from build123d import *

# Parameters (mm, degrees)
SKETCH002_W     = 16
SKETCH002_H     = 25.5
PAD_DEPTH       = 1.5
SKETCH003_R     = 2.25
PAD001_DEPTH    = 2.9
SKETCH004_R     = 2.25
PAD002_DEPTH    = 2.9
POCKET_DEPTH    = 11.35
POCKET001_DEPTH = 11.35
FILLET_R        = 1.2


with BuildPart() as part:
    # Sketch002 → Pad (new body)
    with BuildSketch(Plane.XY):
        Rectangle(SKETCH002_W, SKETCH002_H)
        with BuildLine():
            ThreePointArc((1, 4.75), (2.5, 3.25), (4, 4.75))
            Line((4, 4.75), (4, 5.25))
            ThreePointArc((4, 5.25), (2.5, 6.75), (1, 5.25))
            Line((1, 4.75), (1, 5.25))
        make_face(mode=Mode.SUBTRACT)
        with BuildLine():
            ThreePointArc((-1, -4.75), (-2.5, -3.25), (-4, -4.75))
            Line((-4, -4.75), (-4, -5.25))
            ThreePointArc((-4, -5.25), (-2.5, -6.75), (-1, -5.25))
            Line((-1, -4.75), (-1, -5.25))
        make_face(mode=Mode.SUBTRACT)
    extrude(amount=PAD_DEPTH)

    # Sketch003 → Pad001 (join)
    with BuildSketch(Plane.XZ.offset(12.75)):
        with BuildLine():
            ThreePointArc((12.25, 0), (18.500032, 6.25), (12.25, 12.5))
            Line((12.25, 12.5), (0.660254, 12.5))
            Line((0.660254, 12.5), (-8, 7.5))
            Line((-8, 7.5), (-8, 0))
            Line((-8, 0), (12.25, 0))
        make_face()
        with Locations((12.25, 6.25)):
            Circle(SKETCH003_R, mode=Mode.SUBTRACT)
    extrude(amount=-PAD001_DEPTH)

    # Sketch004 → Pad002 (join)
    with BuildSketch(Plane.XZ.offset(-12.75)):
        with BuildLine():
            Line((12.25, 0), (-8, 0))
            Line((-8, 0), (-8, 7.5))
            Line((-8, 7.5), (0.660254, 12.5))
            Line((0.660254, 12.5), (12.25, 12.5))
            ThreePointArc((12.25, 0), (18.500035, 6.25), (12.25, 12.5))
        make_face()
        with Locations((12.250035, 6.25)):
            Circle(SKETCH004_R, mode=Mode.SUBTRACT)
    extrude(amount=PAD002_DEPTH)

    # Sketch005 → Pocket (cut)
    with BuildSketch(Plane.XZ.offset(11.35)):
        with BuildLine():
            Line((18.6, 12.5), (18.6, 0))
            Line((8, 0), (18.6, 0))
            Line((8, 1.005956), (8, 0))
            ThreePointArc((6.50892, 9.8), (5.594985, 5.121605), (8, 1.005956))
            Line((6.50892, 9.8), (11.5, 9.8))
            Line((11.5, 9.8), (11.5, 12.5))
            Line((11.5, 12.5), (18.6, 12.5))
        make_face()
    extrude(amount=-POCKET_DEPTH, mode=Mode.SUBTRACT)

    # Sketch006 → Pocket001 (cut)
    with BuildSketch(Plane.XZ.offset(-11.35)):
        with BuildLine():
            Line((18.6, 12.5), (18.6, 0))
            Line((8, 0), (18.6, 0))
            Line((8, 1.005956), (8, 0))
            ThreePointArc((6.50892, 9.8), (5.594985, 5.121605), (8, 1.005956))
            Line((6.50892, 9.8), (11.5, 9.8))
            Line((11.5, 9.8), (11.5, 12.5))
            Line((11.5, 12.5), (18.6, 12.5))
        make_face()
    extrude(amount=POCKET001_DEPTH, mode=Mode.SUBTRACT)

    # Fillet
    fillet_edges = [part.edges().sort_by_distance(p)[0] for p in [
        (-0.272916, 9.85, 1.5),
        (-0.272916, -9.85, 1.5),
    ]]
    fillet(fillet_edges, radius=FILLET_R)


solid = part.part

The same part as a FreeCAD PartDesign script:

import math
import FreeCAD as App
import Part
import Sketcher
from FreeCAD import Vector
Q = App.Units.Quantity


def edges_at(feature, points):
    """Names of the edges that pass closest to the given points."""
    edges = feature.Shape.Edges
    near = lambda p: min(range(len(edges)), key=lambda i: edges[i].distToShape(Part.Vertex(*p))[0])
    return sorted({f"Edge{near(p) + 1}" for p in points})


def add_polygon(sketch, points):
    """Adds a closed chain of lines whose ends are joined by coincident constraints."""
    first, n = sketch.GeometryCount, len(points)
    for a, b in zip(points, points[1:] + points[:1]):
        sketch.addGeometry(Part.LineSegment(App.Vector(*a, 0), App.Vector(*b, 0)), False)
    for i in range(n):
        sketch.addConstraint(Sketcher.Constraint("Coincident", first + i, 2, first + (i + 1) % n, 1))

doc = App.newDocument("Part")
body = doc.addObject("PartDesign::Body", "Body")

# Sketch on XY plane
sketch1 = body.newObject("Sketcher::SketchObject", "Sketch")
sketch1.AttachmentSupport = (doc.getObject("XY_Plane"), [""])
sketch1.MapMode = "FlatFace"
add_polygon(sketch1, [(-8, 12.8), (-8, -12.8), (8, -12.8), (8, 12.8)])  # lines 0-3
sketch1.addGeometry(Part.ArcOfCircle(Part.Circle(Vector(-2.5, -4.8, 0), Vector(0, 0, 1), 1.5), math.radians(0), math.radians(180)), False)  # 4
sketch1.addGeometry(Part.LineSegment(Vector(-1, -4.8, 0), Vector(-1, -5.2, 0)), False)  # 5
sketch1.addGeometry(Part.ArcOfCircle(Part.Circle(Vector(-2.5, -5.2, 0), Vector(0, 0, 1), 1.5), math.radians(180), math.radians(360)), False)  # 6
sketch1.addGeometry(Part.LineSegment(Vector(-4, -5.2, 0), Vector(-4, -4.8, 0)), False)  # 7
sketch1.addGeometry(Part.ArcOfCircle(Part.Circle(Vector(2.5, 4.8, 0), Vector(0, 0, 1), 1.5), math.radians(180), math.radians(360)), False)  # 8
sketch1.addGeometry(Part.LineSegment(Vector(1, 4.8, 0), Vector(1, 5.2, 0)), False)  # 9
sketch1.addGeometry(Part.ArcOfCircle(Part.Circle(Vector(2.5, 5.2, 0), Vector(0, 0, 1), 1.5), math.radians(0), math.radians(180)), False)  # 10
sketch1.addGeometry(Part.LineSegment(Vector(4, 5.2, 0), Vector(4, 4.8, 0)), False)  # 11
sketch1.addConstraint(Sketcher.Constraint("Tangent", 4, 1, 5, 1))
sketch1.addConstraint(Sketcher.Constraint("Tangent", 5, 2, 6, 2))
sketch1.addConstraint(Sketcher.Constraint("Tangent", 6, 1, 7, 1))
sketch1.addConstraint(Sketcher.Constraint("Tangent", 7, 2, 4, 2))
sketch1.addConstraint(Sketcher.Constraint("Tangent", 8, 1, 9, 1))
sketch1.addConstraint(Sketcher.Constraint("Tangent", 9, 2, 10, 2))
sketch1.addConstraint(Sketcher.Constraint("Tangent", 10, 1, 11, 1))
sketch1.addConstraint(Sketcher.Constraint("Tangent", 11, 2, 8, 2))
sketch1.addConstraint(Sketcher.Constraint("Vertical", 0))
sketch1.addConstraint(Sketcher.Constraint("Horizontal", 1))
sketch1.addConstraint(Sketcher.Constraint("Vertical", 2))
sketch1.addConstraint(Sketcher.Constraint("Horizontal", 3))
sketch1.addConstraint(Sketcher.Constraint("Vertical", 5))
sketch1.addConstraint(Sketcher.Constraint("Vertical", 7))
sketch1.addConstraint(Sketcher.Constraint("Vertical", 9))
sketch1.addConstraint(Sketcher.Constraint("Vertical", 11))
sketch1.addConstraint(Sketcher.Constraint("Equal", 6, 8))
sketch1.addConstraint(Sketcher.Constraint("Symmetric", 4, 3, 8, 3, -1, 1))
sketch1.addConstraint(Sketcher.Constraint("Symmetric", 0, 2, 2, 2, -1, 1))
sketch1.addConstraint(Sketcher.Constraint("Equal", 7, 9))
sketch1.addConstraint(Sketcher.Constraint("Radius", 4, 1.5))
sketch1.addConstraint(Sketcher.Constraint("DistanceX", 1, 1, 1, 2, 16.0))
sketch1.addConstraint(Sketcher.Constraint("DistanceY", 0, 2, 0, 1, 25.5))
sketch1.addConstraint(Sketcher.Constraint("DistanceY", 5, 2, 5, 1, 0.5))
sketch1.addConstraint(Sketcher.Constraint("DistanceX", 4, 1, -1, 1, 1.0))
sketch1.addConstraint(Sketcher.Constraint("DistanceY", 6, 3, 8, 3, 10.0))
pad1 = body.newObject("PartDesign::Pad", "Pad")
pad1.Profile = sketch1
pad1.Length = 1.5

# Sketch on XZ plane
sketch2 = body.newObject("Sketcher::SketchObject", "Sketch001")
sketch2.AttachmentSupport = (doc.getObject("XZ_Plane"), [""])
sketch2.MapMode = "FlatFace"
sketch2.AttachmentOffset = App.Placement(Vector(0, 0, 12.75), App.Rotation())
sketch2.addGeometry(Part.ArcOfCircle(Part.Circle(Vector(12.3, 6.2, 0), Vector(0, 0, 1), 6.2), math.radians(-90), math.radians(90)), False)
sketch2.addGeometry(Part.LineSegment(Vector(12.2, 12.5, 0), Vector(0.7, 12.5, 0)), False)
sketch2.addGeometry(Part.LineSegment(Vector(0.7, 12.5, 0), Vector(-8, 7.5, 0)), False)
sketch2.addGeometry(Part.LineSegment(Vector(-8, 7.5, 0), Vector(-8, 0, 0)), False)
sketch2.addGeometry(Part.LineSegment(Vector(-8, 0, 0), Vector(12.2, 0, 0)), False)
sketch2.addGeometry(Part.Circle(Vector(12.2, 6.2, 0), Vector(0, 0, 1), 2.2), False)
sketch2.addConstraint(Sketcher.Constraint("Coincident", 0, 2, 1, 1))
sketch2.addConstraint(Sketcher.Constraint("Coincident", 1, 2, 2, 1))
sketch2.addConstraint(Sketcher.Constraint("Coincident", 2, 2, 3, 1))
sketch2.addConstraint(Sketcher.Constraint("Coincident", 3, 2, 4, 1))
sketch2.addConstraint(Sketcher.Constraint("Coincident", 4, 2, 0, 1))
sketch2.addConstraint(Sketcher.Constraint("Horizontal", 1))
sketch2.addConstraint(Sketcher.Constraint("Vertical", 3))
sketch2.addConstraint(Sketcher.Constraint("Horizontal", 4))
sketch2.addConstraint(Sketcher.Constraint("PointOnObject", 3, 2, -1))
sketch2.addConstraint(Sketcher.Constraint("Horizontal", 0, 3, 5, 3))
sketch2.addConstraint(Sketcher.Constraint("Vertical", 5, 3, 0, 2))
sketch2.addConstraint(Sketcher.Constraint("Vertical", 0, 2, 4, 2))
sketch2.addConstraint(Sketcher.Constraint("Diameter", 5, 4.5))
sketch2.addConstraint(Sketcher.Constraint("Angle", 2, Q("-150 deg")))
sketch2.addConstraint(Sketcher.Constraint("Radius", 0, 6.25))
sketch2.addConstraint(Sketcher.Constraint("Distance", 2, 10.0))
sketch2.addConstraint(Sketcher.Constraint("DistanceX", 2, 2, -1, 1, 8.0))
sketch2.addConstraint(Sketcher.Constraint("DistanceX", 4, 1, 4, 2, 20.25))
sketch2.addConstraint(Sketcher.Constraint("DistanceX", -1, 1, 0, 3, 12.250032))
pad2 = body.newObject("PartDesign::Pad", "Pad001")
pad2.Profile = sketch2
pad2.Length = 2.9
pad2.Reversed = True

# Sketch on XZ plane
sketch3 = body.newObject("Sketcher::SketchObject", "Sketch002")
sketch3.AttachmentSupport = (doc.getObject("XZ_Plane"), [""])
sketch3.MapMode = "FlatFace"
sketch3.AttachmentOffset = App.Placement(Vector(0, 0, -12.75), App.Rotation())
sketch3.addGeometry(Part.LineSegment(Vector(-8, 0, 0), Vector(12.2, 0, 0)), False)
sketch3.addGeometry(Part.ArcOfCircle(Part.Circle(Vector(12.3, 6.2, 0), Vector(0, 0, 1), 6.2), math.radians(-90), math.radians(90)), False)
sketch3.addGeometry(Part.LineSegment(Vector(12.2, 12.5, 0), Vector(0.7, 12.5, 0)), False)
sketch3.addGeometry(Part.LineSegment(Vector(0.7, 12.5, 0), Vector(-8, 7.5, 0)), False)
sketch3.addGeometry(Part.LineSegment(Vector(-8, 7.5, 0), Vector(-8, 0, 0)), False)
sketch3.addGeometry(Part.Circle(Vector(12.3, 6.2, 0), Vector(0, 0, 1), 2.2), False)
sketch3.addConstraint(Sketcher.Constraint("Coincident", 0, 2, 1, 1))
sketch3.addConstraint(Sketcher.Constraint("Coincident", 1, 2, 2, 1))
sketch3.addConstraint(Sketcher.Constraint("Coincident", 2, 2, 3, 1))
sketch3.addConstraint(Sketcher.Constraint("Coincident", 3, 2, 4, 1))
sketch3.addConstraint(Sketcher.Constraint("Coincident", 4, 2, 0, 1))
sketch3.addConstraint(Sketcher.Constraint("Horizontal", 0))
sketch3.addConstraint(Sketcher.Constraint("Horizontal", 2))
sketch3.addConstraint(Sketcher.Constraint("Vertical", 4))
sketch3.addConstraint(Sketcher.Constraint("Coincident", 5, 3, 1, 3))
sketch3.addConstraint(Sketcher.Constraint("PointOnObject", 0, 2, -1))
sketch3.addConstraint(Sketcher.Constraint("Vertical", 0, 2, 1, 2))
sketch3.addConstraint(Sketcher.Constraint("Diameter", 5, 4.5))
sketch3.addConstraint(Sketcher.Constraint("Angle", 3, Q("-150 deg")))
sketch3.addConstraint(Sketcher.Constraint("Radius", 1, 6.25))
sketch3.addConstraint(Sketcher.Constraint("Distance", 3, 10.0))
sketch3.addConstraint(Sketcher.Constraint("DistanceX", 3, 2, -1, 1, 8.0))
sketch3.addConstraint(Sketcher.Constraint("DistanceX", 0, 1, 0, 2, 20.25))
sketch3.addConstraint(Sketcher.Constraint("DistanceX", 2, 2, 1, 3, 11.589781))
pad3 = body.newObject("PartDesign::Pad", "Pad002")
pad3.Profile = sketch3
pad3.Length = 2.9

# Sketch on XZ plane
sketch4 = body.newObject("Sketcher::SketchObject", "Sketch003")
sketch4.AttachmentSupport = (doc.getObject("XZ_Plane"), [""])
sketch4.MapMode = "FlatFace"
sketch4.AttachmentOffset = App.Placement(Vector(0, 0, 11.35), App.Rotation())
sketch4.addGeometry(Part.LineSegment(Vector(18.6, 0, 0), Vector(18.6, 12.5, 0)), False)
sketch4.addGeometry(Part.LineSegment(Vector(18.6, 12.5, 0), Vector(11.5, 12.5, 0)), False)
sketch4.addGeometry(Part.LineSegment(Vector(11.5, 12.5, 0), Vector(11.5, 9.8, 0)), False)
sketch4.addGeometry(Part.LineSegment(Vector(11.5, 9.8, 0), Vector(6.5, 9.8, 0)), False)
sketch4.addGeometry(Part.ArcOfCircle(Part.Circle(Vector(12.2, 6.3, 0), Vector(0, 0, 1), 6.7), math.radians(148), math.radians(231)), False)
sketch4.addGeometry(Part.LineSegment(Vector(8, 1, 0), Vector(8, 0, 0)), False)
sketch4.addGeometry(Part.LineSegment(Vector(8, 0, 0), Vector(18.6, 0, 0)), False)
sketch4.addConstraint(Sketcher.Constraint("Coincident", 0, 2, 1, 1))
sketch4.addConstraint(Sketcher.Constraint("Coincident", 1, 2, 2, 1))
sketch4.addConstraint(Sketcher.Constraint("Coincident", 2, 2, 3, 1))
sketch4.addConstraint(Sketcher.Constraint("Coincident", 3, 2, 4, 1))
sketch4.addConstraint(Sketcher.Constraint("Coincident", 4, 2, 5, 1))
sketch4.addConstraint(Sketcher.Constraint("Coincident", 5, 2, 6, 1))
sketch4.addConstraint(Sketcher.Constraint("Coincident", 6, 2, 0, 1))
sketch4.addConstraint(Sketcher.Constraint("Vertical", 0))
sketch4.addConstraint(Sketcher.Constraint("Horizontal", 1))
sketch4.addConstraint(Sketcher.Constraint("Vertical", 2))
sketch4.addConstraint(Sketcher.Constraint("Horizontal", 3))
sketch4.addConstraint(Sketcher.Constraint("Vertical", 5))
sketch4.addConstraint(Sketcher.Constraint("Horizontal", 6))
sketch4.addConstraint(Sketcher.Constraint("PointOnObject", 5, 2, -1))
sketch4.addConstraint(Sketcher.Constraint("Radius", 4, 6.75))
sketch4.addConstraint(Sketcher.Constraint("DistanceX", 1, 2, 1, 1, 7.1))
sketch4.addConstraint(Sketcher.Constraint("DistanceX", 6, 1, 6, 2, 10.6))
sketch4.addConstraint(Sketcher.Constraint("DistanceY", 0, 1, 0, 2, 12.5))
sketch4.addConstraint(Sketcher.Constraint("DistanceY", 2, 2, 2, 1, 2.7))
sketch4.addConstraint(Sketcher.Constraint("DistanceX", -1, 1, 4, 2, 8.0))
sketch4.addConstraint(Sketcher.Constraint("DistanceX", -1, 1, 4, 3, 12.25))
sketch4.addConstraint(Sketcher.Constraint("DistanceY", -1, 1, 4, 3, 6.25))
pocket1 = body.newObject("PartDesign::Pocket", "Pocket")
pocket1.Profile = sketch4
pocket1.Length = 11.35

# Sketch on XZ plane
sketch5 = body.newObject("Sketcher::SketchObject", "Sketch004")
sketch5.AttachmentSupport = (doc.getObject("XZ_Plane"), [""])
sketch5.MapMode = "FlatFace"
sketch5.AttachmentOffset = App.Placement(Vector(0, 0, -11.35), App.Rotation())
sketch5.addGeometry(Part.LineSegment(Vector(18.6, 0, 0), Vector(18.6, 12.5, 0)), False)
sketch5.addGeometry(Part.LineSegment(Vector(18.6, 12.5, 0), Vector(11.5, 12.5, 0)), False)
sketch5.addGeometry(Part.LineSegment(Vector(11.5, 12.5, 0), Vector(11.5, 9.8, 0)), False)
sketch5.addGeometry(Part.LineSegment(Vector(11.5, 9.8, 0), Vector(6.5, 9.8, 0)), False)
sketch5.addGeometry(Part.ArcOfCircle(Part.Circle(Vector(12.2, 6.3, 0), Vector(0, 0, 1), 6.7), math.radians(148), math.radians(231)), False)
sketch5.addGeometry(Part.LineSegment(Vector(8, 1, 0), Vector(8, 0, 0)), False)
sketch5.addGeometry(Part.LineSegment(Vector(8, 0, 0), Vector(18.6, 0, 0)), False)
sketch5.addConstraint(Sketcher.Constraint("Coincident", 0, 2, 1, 1))
sketch5.addConstraint(Sketcher.Constraint("Coincident", 1, 2, 2, 1))
sketch5.addConstraint(Sketcher.Constraint("Coincident", 2, 2, 3, 1))
sketch5.addConstraint(Sketcher.Constraint("Coincident", 3, 2, 4, 1))
sketch5.addConstraint(Sketcher.Constraint("Coincident", 4, 2, 5, 1))
sketch5.addConstraint(Sketcher.Constraint("Coincident", 5, 2, 6, 1))
sketch5.addConstraint(Sketcher.Constraint("Coincident", 6, 2, 0, 1))
sketch5.addConstraint(Sketcher.Constraint("Vertical", 0))
sketch5.addConstraint(Sketcher.Constraint("Horizontal", 1))
sketch5.addConstraint(Sketcher.Constraint("Vertical", 2))
sketch5.addConstraint(Sketcher.Constraint("Horizontal", 3))
sketch5.addConstraint(Sketcher.Constraint("Vertical", 5))
sketch5.addConstraint(Sketcher.Constraint("Horizontal", 6))
sketch5.addConstraint(Sketcher.Constraint("PointOnObject", 5, 2, -1))
sketch5.addConstraint(Sketcher.Constraint("Radius", 4, 6.75))
sketch5.addConstraint(Sketcher.Constraint("DistanceX", 1, 2, 1, 1, 7.1))
sketch5.addConstraint(Sketcher.Constraint("DistanceX", 6, 1, 6, 2, 10.6))
sketch5.addConstraint(Sketcher.Constraint("DistanceY", 0, 1, 0, 2, 12.5))
sketch5.addConstraint(Sketcher.Constraint("DistanceY", 2, 2, 2, 1, 2.7))
sketch5.addConstraint(Sketcher.Constraint("DistanceX", -1, 1, 4, 2, 8.0))
sketch5.addConstraint(Sketcher.Constraint("DistanceX", -1, 1, 4, 3, 12.25))
sketch5.addConstraint(Sketcher.Constraint("DistanceY", -1, 1, 4, 3, 6.25))
pocket2 = body.newObject("PartDesign::Pocket", "Pocket001")
pocket2.Profile = sketch5
pocket2.Length = 11.35
pocket2.Reversed = True
doc.recompute()

fillet = body.newObject("PartDesign::Fillet", "Fillet")
fillet.Base = (pocket2, edges_at(pocket2, [(-0.273, 9.85, 1.5), (-0.273, -9.85, 1.5)]))
fillet.Radius = 1.2

doc.recompute()
